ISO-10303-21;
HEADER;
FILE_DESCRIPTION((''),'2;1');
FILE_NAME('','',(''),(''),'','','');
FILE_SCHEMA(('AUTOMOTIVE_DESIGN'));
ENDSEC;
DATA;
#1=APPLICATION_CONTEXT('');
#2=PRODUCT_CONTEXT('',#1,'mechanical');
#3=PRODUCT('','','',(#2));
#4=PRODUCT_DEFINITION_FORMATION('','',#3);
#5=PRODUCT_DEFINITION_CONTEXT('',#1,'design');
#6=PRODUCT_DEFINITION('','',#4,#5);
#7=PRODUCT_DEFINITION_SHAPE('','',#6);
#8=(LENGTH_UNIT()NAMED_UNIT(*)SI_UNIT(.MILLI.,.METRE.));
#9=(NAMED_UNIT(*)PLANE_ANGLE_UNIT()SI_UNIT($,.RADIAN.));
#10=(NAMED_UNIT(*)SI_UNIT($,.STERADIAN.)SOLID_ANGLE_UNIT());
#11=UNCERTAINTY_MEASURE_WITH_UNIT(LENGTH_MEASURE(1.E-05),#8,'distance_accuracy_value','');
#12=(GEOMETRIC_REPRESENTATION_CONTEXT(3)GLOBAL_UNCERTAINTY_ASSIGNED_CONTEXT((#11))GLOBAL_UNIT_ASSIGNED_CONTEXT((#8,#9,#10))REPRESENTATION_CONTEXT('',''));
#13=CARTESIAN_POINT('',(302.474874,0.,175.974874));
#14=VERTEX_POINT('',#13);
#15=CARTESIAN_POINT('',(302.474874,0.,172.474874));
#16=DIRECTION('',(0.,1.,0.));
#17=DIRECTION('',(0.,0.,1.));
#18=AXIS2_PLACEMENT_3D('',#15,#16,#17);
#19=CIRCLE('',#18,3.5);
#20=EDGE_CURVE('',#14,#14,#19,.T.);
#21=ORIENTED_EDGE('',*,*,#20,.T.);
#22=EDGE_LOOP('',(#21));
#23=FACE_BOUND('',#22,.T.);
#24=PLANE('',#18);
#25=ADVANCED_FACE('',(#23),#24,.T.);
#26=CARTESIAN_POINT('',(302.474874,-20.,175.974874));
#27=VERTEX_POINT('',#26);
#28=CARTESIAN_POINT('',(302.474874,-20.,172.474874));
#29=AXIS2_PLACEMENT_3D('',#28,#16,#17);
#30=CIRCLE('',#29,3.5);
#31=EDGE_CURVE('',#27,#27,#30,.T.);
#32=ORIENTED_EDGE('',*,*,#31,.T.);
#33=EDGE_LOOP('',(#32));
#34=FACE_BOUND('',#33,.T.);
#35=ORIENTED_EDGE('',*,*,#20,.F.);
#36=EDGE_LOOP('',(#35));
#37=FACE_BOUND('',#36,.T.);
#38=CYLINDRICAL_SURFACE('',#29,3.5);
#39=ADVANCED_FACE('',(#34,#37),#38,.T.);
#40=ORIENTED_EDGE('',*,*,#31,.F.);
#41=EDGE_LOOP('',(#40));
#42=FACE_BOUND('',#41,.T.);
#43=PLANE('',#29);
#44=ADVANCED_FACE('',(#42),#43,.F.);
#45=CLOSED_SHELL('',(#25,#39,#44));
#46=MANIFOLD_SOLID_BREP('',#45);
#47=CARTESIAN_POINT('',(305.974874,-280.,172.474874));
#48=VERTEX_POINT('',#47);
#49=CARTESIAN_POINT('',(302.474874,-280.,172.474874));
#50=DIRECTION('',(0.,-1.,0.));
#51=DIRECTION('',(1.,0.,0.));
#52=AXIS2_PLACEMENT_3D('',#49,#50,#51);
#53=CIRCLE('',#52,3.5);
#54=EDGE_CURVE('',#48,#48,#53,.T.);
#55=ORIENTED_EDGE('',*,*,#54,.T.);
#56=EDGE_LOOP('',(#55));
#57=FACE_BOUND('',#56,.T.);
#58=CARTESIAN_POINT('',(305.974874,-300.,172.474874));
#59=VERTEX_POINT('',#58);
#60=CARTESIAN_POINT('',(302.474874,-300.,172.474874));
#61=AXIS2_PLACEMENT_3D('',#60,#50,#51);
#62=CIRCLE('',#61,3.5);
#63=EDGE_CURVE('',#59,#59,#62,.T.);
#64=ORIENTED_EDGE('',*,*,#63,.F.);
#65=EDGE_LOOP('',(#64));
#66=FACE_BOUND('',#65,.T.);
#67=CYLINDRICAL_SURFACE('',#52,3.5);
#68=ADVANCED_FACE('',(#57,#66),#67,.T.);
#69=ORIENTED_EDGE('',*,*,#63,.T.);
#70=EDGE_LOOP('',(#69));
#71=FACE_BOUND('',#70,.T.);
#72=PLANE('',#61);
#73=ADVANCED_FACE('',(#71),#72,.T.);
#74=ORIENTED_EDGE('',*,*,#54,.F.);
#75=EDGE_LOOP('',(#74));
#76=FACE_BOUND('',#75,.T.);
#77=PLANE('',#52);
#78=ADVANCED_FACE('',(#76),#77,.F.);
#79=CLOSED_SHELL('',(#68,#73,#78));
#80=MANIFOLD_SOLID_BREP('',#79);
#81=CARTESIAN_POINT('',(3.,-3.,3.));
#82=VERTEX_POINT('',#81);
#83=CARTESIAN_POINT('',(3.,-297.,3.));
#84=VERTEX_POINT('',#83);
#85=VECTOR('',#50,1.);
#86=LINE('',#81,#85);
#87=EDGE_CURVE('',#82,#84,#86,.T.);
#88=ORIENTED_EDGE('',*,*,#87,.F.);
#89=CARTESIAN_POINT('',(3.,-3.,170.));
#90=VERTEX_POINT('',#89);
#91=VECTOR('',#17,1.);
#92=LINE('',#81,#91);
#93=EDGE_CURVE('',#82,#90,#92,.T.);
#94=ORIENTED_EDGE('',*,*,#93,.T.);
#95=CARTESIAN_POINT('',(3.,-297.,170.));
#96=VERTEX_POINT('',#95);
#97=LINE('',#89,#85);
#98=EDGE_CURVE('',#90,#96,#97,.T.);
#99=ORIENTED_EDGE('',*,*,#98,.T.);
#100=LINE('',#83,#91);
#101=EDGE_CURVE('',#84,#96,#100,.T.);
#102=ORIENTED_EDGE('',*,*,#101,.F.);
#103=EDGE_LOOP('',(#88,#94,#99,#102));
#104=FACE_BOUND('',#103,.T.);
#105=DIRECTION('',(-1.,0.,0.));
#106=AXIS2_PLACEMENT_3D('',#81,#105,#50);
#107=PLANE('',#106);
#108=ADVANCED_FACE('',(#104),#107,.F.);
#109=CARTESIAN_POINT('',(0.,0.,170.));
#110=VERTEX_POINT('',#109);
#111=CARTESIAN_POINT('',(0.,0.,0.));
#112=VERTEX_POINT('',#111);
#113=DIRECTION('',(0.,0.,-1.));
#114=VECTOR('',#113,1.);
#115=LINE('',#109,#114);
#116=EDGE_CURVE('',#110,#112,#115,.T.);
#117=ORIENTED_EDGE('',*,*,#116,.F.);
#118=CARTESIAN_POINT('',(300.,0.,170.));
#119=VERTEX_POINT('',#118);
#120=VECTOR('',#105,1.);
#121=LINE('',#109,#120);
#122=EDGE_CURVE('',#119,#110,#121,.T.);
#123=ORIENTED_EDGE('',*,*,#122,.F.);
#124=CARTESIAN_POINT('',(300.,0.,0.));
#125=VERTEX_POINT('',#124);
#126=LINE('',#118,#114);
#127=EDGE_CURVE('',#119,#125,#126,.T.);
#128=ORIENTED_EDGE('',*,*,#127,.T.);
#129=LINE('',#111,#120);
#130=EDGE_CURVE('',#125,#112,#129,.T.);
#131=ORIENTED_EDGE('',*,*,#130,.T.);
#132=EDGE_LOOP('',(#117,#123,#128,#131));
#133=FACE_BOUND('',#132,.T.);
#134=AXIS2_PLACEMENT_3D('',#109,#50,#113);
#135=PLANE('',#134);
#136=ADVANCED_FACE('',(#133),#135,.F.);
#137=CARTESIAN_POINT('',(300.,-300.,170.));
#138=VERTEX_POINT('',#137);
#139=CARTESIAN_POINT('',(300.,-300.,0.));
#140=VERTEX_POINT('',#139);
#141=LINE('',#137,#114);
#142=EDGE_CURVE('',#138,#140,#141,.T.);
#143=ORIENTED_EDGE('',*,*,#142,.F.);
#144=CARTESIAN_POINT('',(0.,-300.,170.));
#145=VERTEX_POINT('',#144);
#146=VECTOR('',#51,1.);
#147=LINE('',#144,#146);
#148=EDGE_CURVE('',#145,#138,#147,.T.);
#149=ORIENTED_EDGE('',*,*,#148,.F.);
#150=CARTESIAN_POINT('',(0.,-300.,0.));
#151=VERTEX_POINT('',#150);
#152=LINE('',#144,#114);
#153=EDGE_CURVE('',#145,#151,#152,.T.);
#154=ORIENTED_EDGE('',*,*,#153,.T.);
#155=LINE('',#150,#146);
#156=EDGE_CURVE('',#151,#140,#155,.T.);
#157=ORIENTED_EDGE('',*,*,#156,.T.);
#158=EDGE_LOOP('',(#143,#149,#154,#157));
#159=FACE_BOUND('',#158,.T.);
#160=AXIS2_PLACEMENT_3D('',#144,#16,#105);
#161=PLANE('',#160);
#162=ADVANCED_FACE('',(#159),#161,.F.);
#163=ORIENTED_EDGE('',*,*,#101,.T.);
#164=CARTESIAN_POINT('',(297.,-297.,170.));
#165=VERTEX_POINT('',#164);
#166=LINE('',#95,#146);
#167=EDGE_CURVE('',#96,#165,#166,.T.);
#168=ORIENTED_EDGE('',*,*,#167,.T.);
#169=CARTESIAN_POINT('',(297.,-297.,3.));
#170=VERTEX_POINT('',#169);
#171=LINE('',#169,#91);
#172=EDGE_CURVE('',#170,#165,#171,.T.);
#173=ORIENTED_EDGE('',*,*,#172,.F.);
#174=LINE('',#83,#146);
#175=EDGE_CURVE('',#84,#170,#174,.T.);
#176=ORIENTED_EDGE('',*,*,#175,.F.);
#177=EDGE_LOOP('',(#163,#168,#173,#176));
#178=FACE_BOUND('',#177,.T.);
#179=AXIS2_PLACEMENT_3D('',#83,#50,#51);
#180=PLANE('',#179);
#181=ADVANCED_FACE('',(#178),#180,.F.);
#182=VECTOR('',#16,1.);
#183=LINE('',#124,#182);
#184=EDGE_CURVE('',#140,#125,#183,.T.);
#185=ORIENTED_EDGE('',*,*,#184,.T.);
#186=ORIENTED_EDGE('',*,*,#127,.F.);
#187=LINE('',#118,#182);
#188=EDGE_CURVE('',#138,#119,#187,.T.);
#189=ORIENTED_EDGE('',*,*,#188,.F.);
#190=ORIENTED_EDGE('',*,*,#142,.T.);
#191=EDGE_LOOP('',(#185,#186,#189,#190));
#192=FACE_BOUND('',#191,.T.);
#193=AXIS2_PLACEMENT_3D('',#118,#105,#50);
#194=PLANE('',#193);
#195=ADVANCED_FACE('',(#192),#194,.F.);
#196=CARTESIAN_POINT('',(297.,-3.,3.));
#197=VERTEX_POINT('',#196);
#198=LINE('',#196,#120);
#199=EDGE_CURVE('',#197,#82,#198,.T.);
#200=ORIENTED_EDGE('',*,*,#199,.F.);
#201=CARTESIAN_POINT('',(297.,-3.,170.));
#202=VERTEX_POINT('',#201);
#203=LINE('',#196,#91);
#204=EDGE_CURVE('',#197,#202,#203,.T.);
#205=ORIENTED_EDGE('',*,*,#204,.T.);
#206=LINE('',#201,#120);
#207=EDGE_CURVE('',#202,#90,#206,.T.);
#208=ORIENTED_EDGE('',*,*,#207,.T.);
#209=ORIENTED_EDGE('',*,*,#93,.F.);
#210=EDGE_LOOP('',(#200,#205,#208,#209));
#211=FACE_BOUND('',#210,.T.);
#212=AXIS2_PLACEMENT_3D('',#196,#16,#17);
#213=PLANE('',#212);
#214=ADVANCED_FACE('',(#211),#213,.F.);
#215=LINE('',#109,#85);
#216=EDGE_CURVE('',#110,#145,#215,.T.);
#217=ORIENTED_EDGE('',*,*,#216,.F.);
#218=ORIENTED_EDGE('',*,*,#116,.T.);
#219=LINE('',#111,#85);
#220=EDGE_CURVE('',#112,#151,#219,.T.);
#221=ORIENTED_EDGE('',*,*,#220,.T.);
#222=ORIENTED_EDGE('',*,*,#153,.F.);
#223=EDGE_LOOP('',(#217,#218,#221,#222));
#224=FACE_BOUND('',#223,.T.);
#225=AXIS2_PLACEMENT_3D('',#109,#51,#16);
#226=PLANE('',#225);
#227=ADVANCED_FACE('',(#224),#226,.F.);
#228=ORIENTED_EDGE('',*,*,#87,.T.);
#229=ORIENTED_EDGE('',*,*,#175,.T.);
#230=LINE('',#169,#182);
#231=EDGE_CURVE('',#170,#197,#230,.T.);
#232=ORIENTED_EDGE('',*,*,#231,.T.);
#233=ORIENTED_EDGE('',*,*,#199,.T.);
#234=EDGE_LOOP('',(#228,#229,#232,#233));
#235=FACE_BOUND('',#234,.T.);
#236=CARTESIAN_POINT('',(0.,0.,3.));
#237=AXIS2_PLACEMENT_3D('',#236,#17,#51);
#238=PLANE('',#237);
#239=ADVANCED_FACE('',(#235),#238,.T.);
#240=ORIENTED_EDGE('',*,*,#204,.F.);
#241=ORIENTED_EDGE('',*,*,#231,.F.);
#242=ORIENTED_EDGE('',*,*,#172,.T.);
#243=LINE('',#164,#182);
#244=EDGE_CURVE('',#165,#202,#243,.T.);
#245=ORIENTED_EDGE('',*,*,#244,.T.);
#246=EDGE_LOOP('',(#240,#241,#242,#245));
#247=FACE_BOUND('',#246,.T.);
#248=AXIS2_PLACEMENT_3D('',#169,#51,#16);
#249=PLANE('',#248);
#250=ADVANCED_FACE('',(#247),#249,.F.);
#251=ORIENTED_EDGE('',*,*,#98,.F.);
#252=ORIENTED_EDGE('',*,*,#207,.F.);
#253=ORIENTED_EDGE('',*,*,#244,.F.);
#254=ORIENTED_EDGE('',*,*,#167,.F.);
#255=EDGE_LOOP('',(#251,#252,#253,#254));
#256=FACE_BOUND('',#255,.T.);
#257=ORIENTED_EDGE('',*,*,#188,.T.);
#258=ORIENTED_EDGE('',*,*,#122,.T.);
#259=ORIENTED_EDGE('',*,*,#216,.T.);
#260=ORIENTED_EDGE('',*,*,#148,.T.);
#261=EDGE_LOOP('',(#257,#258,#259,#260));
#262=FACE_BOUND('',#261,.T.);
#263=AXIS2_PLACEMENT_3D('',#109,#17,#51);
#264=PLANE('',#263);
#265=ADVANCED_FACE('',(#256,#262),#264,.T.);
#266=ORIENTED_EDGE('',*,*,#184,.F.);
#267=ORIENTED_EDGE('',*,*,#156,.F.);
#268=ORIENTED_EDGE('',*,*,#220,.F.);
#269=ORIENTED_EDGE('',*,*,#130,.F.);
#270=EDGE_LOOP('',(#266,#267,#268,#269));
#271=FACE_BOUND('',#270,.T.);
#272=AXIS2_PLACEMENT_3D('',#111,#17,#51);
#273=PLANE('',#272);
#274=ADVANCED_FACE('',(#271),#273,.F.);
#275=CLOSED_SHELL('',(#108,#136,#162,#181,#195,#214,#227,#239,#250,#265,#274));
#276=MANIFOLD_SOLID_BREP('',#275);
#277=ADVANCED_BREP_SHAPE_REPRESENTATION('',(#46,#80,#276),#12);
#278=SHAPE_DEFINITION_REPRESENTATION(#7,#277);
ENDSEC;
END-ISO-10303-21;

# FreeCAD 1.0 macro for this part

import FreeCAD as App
import Part
import Sketcher

V = App.Vector
Q = App.Units.Quantity

doc = App.newDocument("Part")
body = doc.addObject("PartDesign::Body", "Body")

sketch1 = body.newObject("Sketcher::SketchObject", "Sketch")
sketch1.AttachmentSupport = (doc.getObject("XY_Plane"), [""])
sketch1.MapMode = "FlatFace"
sketch1.addGeometry([
    Part.LineSegment(V(0, 0, 0), V(0, -300, 0)),
    Part.LineSegment(V(0, -300, 0), V(300, -300, 0)),
    Part.LineSegment(V(300, -300, 0), V(300, 0, 0)),
    Part.LineSegment(V(300, 0, 0), V(0, 0, 0)),
], False)
sketch1.addConstraint([
    Sketcher.Constraint("Coincident", 0, 2, 1, 1),
    Sketcher.Constraint("Coincident", 1, 2, 2, 1),
    Sketcher.Constraint("Coincident", 2, 2, 3, 1),
    Sketcher.Constraint("Coincident", 3, 2, 0, 1),
    Sketcher.Constraint("Vertical", 0),
    Sketcher.Constraint("Horizontal", 1),
    Sketcher.Constraint("Vertical", 2),
    Sketcher.Constraint("Horizontal", 3),
    Sketcher.Constraint("Coincident", 3, 2, -1, 1),
    Sketcher.Constraint("Equal", 3, 0),
    Sketcher.Constraint("DistanceX", 1, 1, 1, 2, Q("300 mm")),
])
pad1 = body.newObject("PartDesign::Pad", "Pad")
pad1.Profile = sketch1
pad1.Length = 170

sketch2 = body.newObject("Sketcher::SketchObject", "Sketch001")
sketch2.AttachmentSupport = (doc.getObject("XY_Plane"), [""])
sketch2.MapMode = "FlatFace"
sketch2.AttachmentOffset = App.Placement(V(0, 0, 170), App.Rotation())
sketch2.addGeometry([
    Part.LineSegment(V(3, -3, 0), V(3, -297, 0)),
    Part.LineSegment(V(3, -297, 0), V(297, -297, 0)),
    Part.LineSegment(V(297, -297, 0), V(297, -3, 0)),
    Part.LineSegment(V(297, -3, 0), V(3, -3, 0)),
], False)
sketch2.addConstraint([
    Sketcher.Constraint("Coincident", 0, 2, 1, 1),
    Sketcher.Constraint("Coincident", 1, 2, 2, 1),
    Sketcher.Constraint("Coincident", 2, 2, 3, 1),
    Sketcher.Constraint("Coincident", 3, 2, 0, 1),
    Sketcher.Constraint("Vertical", 0),
    Sketcher.Constraint("Horizontal", 1),
    Sketcher.Constraint("Vertical", 2),
    Sketcher.Constraint("Horizontal", 3),
    Sketcher.Constraint("Equal", 3, 0),
    Sketcher.Constraint("DistanceX", 1, 1, 1, 2, Q("294 mm")),
    Sketcher.Constraint("DistanceX", -1, 1, 0, 2, Q("3 mm")),
    Sketcher.Constraint("DistanceY", 0, 2, -1, 1, Q("297 mm")),
])
pocket1 = body.newObject("PartDesign::Pocket", "Pocket")
pocket1.Profile = sketch2
pocket1.Length = 167
body2 = doc.addObject("PartDesign::Body", "Body001")

sketch3 = body2.newObject("Sketcher::SketchObject", "Sketch002")
sketch3.AttachmentSupport = (doc.getObject("XZ_Plane001"), [""])
sketch3.MapMode = "FlatFace"
sketch3.addGeometry(Part.Circle(V(302.474874, 172.474874, 0), V(0, 0, 1), 3.5), False)
sketch3.addConstraint([
    Sketcher.Constraint("Diameter", 0, Q("7 mm")),
    Sketcher.Constraint("DistanceX", -1, 1, 0, 3, Q("302.474874 mm")),
    Sketcher.Constraint("DistanceY", -1, 1, 0, 3, Q("172.474874 mm")),
])
pad2 = body2.newObject("PartDesign::Pad", "Pad001")
pad2.Profile = sketch3
pad2.Length = 20
body3 = doc.addObject("PartDesign::Body", "Body002")

sketch4 = body3.newObject("Sketcher::SketchObject", "Sketch003")
sketch4.AttachmentSupport = (doc.getObject("XZ_Plane002"), [""])
sketch4.MapMode = "FlatFace"
sketch4.AttachmentOffset = App.Placement(V(0, 0, 300), App.Rotation())
sketch4.addGeometry(Part.Circle(V(302.474874, 172.474874, 0), V(0, 0, 1), 3.5), False)
sketch4.addConstraint([
    Sketcher.Constraint("Diameter", 0, Q("7 mm")),
    Sketcher.Constraint("DistanceX", -1, 1, 0, 3, Q("302.474874 mm")),
    Sketcher.Constraint("DistanceY", -1, 1, 0, 3, Q("172.474874 mm")),
])
pad3 = body3.newObject("PartDesign::Pad", "Pad002")
pad3.Profile = sketch4
pad3.Length = 20
pad3.Reversed = True

doc.recompute()
